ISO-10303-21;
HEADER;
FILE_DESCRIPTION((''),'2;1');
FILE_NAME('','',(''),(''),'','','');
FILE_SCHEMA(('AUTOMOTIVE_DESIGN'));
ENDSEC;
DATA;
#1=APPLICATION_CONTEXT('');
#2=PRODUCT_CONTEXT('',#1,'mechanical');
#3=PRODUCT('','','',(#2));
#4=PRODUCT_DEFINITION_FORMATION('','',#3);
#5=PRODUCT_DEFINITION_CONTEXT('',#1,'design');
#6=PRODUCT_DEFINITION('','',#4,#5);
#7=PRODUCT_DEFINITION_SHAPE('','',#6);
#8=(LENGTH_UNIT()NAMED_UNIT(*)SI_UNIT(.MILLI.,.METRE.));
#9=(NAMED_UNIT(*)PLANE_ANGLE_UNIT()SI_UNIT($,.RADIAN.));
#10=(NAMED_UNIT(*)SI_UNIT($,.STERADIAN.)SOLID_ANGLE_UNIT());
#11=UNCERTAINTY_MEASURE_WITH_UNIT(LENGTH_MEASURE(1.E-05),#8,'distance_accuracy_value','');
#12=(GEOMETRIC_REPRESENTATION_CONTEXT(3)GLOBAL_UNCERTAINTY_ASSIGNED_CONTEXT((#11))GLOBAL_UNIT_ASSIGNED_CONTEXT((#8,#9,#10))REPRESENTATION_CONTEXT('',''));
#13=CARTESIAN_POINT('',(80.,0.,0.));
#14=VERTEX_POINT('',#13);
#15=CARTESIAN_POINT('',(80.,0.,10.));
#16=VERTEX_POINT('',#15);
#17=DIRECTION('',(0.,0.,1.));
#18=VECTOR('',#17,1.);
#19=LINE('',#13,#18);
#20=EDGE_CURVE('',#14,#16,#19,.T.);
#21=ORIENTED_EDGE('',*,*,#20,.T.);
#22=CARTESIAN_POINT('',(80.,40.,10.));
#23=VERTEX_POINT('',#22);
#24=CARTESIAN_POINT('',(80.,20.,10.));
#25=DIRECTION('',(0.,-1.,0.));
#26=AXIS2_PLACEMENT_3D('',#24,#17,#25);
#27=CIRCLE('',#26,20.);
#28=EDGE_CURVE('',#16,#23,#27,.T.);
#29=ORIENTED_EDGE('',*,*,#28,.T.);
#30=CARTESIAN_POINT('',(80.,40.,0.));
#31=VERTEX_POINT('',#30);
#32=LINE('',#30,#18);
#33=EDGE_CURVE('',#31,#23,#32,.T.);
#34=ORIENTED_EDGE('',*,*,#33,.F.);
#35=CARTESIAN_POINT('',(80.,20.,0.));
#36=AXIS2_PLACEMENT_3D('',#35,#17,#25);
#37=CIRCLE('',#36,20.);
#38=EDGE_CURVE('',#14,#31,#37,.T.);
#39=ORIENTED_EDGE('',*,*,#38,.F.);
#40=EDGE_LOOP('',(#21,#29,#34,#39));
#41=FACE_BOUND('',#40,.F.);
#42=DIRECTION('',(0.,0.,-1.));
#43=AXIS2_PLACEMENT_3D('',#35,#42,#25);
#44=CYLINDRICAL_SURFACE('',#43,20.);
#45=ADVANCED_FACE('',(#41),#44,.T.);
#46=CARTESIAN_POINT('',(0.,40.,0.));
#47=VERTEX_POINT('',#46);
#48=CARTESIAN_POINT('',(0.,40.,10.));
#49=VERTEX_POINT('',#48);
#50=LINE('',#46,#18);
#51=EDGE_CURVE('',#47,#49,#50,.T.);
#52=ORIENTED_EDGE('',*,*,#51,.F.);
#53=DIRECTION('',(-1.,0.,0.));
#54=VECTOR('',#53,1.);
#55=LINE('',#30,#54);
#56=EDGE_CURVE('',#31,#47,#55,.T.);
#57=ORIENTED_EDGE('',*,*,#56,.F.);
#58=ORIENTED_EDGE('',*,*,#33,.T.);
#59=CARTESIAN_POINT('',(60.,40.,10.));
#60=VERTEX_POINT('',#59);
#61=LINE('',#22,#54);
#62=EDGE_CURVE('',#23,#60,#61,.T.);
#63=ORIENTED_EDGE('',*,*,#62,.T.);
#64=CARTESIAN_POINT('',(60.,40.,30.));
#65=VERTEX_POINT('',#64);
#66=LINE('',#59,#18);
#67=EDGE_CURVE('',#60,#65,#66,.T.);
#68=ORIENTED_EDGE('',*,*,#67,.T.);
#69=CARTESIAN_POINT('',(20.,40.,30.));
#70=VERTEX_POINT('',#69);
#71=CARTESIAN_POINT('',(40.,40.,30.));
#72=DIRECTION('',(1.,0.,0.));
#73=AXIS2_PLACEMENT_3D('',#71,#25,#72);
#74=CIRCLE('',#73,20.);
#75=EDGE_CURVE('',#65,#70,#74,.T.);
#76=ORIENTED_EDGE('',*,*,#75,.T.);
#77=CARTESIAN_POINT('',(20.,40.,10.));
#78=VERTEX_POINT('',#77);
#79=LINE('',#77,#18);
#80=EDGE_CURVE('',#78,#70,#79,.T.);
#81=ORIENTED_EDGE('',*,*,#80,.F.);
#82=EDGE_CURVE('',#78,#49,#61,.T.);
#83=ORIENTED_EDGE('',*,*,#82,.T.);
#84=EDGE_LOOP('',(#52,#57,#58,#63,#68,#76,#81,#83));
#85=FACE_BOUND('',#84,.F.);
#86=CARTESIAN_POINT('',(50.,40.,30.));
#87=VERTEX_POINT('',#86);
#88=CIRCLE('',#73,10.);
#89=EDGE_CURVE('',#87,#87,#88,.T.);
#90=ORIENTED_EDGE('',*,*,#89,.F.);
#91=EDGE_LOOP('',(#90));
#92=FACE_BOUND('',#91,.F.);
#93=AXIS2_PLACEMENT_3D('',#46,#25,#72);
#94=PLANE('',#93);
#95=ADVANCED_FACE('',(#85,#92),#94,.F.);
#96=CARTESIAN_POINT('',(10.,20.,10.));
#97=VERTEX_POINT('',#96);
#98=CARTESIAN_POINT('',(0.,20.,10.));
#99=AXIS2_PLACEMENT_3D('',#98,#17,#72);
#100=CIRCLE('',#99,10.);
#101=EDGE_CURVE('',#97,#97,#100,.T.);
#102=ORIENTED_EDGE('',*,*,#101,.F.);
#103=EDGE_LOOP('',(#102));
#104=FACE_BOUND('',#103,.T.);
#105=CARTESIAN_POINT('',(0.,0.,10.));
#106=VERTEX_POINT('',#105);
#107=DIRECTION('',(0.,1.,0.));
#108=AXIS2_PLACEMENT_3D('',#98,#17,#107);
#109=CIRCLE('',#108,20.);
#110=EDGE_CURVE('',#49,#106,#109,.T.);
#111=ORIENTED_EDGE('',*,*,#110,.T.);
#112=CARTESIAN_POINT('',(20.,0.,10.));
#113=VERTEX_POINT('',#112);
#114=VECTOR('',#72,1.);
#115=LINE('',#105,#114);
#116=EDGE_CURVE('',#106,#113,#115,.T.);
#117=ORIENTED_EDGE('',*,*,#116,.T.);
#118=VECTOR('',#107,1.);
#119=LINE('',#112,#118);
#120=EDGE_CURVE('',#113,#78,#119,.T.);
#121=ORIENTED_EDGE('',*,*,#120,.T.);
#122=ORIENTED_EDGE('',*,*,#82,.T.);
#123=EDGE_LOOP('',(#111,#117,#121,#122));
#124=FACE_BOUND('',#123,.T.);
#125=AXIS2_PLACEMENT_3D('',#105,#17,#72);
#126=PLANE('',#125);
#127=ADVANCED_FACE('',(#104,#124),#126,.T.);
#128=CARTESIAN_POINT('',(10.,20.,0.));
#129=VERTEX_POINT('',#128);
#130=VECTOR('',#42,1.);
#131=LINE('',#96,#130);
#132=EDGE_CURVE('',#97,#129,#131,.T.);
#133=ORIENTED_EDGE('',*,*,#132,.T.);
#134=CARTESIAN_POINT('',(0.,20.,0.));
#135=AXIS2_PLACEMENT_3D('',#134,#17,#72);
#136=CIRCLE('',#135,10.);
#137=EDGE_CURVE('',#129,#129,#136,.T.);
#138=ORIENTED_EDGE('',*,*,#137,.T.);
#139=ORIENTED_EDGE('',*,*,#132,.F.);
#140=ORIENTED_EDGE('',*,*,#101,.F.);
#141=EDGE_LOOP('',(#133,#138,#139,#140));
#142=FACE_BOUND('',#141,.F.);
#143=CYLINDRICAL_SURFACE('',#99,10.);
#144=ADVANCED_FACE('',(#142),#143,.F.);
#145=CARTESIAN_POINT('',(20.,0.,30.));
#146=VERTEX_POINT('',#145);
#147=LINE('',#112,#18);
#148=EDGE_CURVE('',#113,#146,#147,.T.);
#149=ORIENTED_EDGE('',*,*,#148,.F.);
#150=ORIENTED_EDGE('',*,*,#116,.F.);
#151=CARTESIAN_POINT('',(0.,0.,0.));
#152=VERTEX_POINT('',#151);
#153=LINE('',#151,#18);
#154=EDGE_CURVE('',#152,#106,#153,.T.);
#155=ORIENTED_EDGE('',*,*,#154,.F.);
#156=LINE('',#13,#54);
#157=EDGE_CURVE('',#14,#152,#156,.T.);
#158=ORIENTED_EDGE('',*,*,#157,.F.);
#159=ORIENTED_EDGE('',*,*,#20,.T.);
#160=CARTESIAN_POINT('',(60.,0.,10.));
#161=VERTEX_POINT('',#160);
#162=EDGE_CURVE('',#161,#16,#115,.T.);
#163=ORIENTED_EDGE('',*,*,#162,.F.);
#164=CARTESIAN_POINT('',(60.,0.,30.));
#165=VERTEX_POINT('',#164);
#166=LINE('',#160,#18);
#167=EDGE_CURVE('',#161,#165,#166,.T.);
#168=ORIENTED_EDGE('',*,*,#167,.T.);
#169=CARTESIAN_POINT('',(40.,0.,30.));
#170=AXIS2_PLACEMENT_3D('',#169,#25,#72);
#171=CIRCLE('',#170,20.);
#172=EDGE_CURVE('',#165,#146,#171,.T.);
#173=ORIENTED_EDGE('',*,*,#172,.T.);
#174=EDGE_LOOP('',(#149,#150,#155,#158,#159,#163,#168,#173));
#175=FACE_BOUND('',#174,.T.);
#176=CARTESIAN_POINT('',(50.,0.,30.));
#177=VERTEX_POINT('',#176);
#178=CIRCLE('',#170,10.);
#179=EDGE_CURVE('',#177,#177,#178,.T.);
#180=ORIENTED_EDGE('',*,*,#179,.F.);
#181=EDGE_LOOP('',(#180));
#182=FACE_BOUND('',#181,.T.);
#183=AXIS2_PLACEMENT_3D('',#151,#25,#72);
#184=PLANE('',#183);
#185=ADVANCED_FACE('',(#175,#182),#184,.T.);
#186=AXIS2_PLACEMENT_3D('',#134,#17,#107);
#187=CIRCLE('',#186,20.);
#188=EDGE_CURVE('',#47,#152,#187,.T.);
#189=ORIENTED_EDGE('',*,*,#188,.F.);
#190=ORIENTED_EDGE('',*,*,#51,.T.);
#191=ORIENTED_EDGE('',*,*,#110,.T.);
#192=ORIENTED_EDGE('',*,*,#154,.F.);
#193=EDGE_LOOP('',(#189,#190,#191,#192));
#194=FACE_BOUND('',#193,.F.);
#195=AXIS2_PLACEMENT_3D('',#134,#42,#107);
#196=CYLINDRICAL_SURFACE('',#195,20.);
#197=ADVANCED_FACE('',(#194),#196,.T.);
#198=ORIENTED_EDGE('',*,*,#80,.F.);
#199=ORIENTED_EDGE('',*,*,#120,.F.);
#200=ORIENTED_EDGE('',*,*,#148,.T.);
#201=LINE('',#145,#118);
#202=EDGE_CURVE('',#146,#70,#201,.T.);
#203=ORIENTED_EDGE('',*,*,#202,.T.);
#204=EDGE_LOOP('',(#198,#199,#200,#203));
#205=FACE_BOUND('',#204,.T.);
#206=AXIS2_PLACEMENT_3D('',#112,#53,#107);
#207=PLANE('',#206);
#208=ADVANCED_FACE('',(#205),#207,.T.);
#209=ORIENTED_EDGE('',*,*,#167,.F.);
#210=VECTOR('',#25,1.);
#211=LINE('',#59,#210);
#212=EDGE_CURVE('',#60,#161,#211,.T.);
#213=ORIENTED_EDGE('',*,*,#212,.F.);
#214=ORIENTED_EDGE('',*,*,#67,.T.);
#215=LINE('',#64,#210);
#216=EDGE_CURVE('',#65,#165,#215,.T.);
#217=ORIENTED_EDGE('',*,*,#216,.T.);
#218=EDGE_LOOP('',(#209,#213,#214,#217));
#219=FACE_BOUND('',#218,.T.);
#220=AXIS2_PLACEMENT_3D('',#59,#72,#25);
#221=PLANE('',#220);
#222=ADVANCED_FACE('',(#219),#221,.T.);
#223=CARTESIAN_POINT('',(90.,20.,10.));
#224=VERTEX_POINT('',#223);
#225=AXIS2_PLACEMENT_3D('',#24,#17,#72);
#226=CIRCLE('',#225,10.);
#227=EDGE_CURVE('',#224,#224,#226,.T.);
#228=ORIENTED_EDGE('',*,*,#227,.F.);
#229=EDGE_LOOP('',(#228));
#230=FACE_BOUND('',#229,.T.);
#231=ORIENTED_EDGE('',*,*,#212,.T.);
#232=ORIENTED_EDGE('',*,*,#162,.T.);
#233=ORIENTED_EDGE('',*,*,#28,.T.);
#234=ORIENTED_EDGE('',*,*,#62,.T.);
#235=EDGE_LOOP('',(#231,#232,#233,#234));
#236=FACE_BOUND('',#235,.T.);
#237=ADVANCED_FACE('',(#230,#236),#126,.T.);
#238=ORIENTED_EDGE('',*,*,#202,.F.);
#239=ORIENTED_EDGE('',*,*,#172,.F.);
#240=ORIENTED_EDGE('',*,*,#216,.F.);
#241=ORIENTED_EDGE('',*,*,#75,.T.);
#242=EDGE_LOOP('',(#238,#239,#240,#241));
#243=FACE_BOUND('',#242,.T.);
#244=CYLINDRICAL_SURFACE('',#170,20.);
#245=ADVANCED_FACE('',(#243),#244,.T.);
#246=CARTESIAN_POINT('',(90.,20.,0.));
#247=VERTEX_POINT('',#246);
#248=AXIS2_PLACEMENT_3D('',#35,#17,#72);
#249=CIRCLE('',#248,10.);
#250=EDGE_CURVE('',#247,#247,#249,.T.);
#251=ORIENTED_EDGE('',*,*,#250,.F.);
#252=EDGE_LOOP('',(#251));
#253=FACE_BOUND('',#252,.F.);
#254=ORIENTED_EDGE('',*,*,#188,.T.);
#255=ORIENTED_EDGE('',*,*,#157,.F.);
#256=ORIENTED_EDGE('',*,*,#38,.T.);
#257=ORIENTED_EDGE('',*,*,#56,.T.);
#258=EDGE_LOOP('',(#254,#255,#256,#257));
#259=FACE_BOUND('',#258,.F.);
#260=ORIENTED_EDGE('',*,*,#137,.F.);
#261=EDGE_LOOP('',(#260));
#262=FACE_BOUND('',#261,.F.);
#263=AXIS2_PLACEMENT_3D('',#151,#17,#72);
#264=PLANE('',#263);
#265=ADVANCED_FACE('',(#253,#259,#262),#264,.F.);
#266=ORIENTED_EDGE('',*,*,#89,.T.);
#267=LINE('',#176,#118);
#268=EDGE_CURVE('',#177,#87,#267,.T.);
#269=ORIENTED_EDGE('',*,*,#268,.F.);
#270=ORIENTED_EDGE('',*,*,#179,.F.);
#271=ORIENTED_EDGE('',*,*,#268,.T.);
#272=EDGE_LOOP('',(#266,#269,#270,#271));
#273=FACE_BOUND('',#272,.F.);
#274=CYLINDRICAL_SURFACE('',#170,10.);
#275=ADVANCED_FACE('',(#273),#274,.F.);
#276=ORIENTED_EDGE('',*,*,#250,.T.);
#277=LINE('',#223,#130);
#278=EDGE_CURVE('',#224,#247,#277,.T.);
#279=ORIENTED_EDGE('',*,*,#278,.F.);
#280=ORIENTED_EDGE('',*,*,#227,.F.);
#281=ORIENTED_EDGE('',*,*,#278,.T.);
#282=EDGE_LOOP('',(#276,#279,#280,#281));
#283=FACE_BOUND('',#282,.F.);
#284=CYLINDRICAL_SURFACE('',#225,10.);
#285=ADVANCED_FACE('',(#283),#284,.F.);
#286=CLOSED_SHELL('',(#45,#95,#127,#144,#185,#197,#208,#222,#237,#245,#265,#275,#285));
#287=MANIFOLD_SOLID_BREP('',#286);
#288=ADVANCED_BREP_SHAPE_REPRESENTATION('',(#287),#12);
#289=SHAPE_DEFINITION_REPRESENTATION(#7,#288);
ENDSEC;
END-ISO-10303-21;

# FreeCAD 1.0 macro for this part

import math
import FreeCAD as App
import Part
import Sketcher
from FreeCAD import Vector
Q = App.Units.Quantity


def add_polygon(sketch, points):
    """Adds a closed chain of lines whose ends are joined by coincident constraints."""
    first, n = sketch.GeometryCount, len(points)
    for a, b in zip(points, points[1:] + points[:1]):
        sketch.addGeometry(Part.LineSegment(App.Vector(*a, 0), App.Vector(*b, 0)), False)
    for i in range(n):
        sketch.addConstraint(Sketcher.Constraint("Coincident", first + i, 2, first + (i + 1) % n, 1))

doc = App.newDocument("Part")
params = doc.addObject("Spreadsheet::Sheet", "Params")
for row, (alias, value) in enumerate([
    ("sketch1_radius", "20 mm"),
    ("sketch1_width", "80 mm"),
    ("pad1_length", "10 mm"),
    ("sketch2_diameter", "20 mm"),
    ("pocket1_length", "10 mm"),
    ("sketch3_width", "40 mm"),
    ("pad2_length", "20 mm"),
    ("sketch4_radius", "20 mm"),
    ("pad3_length", "40 mm"),
    ("sketch5_diameter", "20 mm"),
    ("pocket2_length", "40 mm"),
], start=1):
    params.set(f"A{row}", alias)
    params.set(f"B{row}", "=" + value)
    params.setAlias(f"B{row}", alias)

body = doc.addObject("PartDesign::Body", "Body")

sketch1 = body.newObject("Sketcher::SketchObject", "Sketch")
sketch1.AttachmentSupport = (doc.getObject("XY_Plane"), [""])
sketch1.MapMode = "FlatFace"
sketch1.addGeometry([
    Part.LineSegment(Vector(80, 40, 0), Vector(0, 40, 0)),
    Part.ArcOfCircle(Part.Circle(Vector(0, 20, 0), Vector(0, 0, 1), 20), math.radians(90), math.radians(270)),
    Part.LineSegment(Vector(0, 0, 0), Vector(80, 0, 0)),
    Part.ArcOfCircle(Part.Circle(Vector(80, 20, 0), Vector(0, 0, 1), 20), math.radians(-90), math.radians(90)),
], False)
sketch1.addConstraint([
    Sketcher.Constraint("Tangent", 0, 2, 1, 1),
    Sketcher.Constraint("Tangent", 1, 2, 2, 1),
    Sketcher.Constraint("Tangent", 2, 2, 3, 1),
    Sketcher.Constraint("Tangent", 3, 2, 0, 1),
    Sketcher.Constraint("Horizontal", 0),
    Sketcher.Constraint("Horizontal", 2),
    Sketcher.Constraint("Coincident", 1, 2, -1, 1),
    Sketcher.Constraint("Radius", 1, Q("20 mm")),
    Sketcher.Constraint("DistanceX", 0, 2, 0, 1, Q("80 mm")),
])
sketch1.setExpression("Constraints[7]", "Params.sketch1_radius")
sketch1.setExpression("Constraints[8]", "Params.sketch1_width")
pad1 = body.newObject("PartDesign::Pad", "Pad")
pad1.Profile = sketch1
pad1.setExpression("Length", "Params.pad1_length")

sketch2 = body.newObject("Sketcher::SketchObject", "Sketch001")
sketch2.AttachmentSupport = (doc.getObject("XY_Plane"), [""])
sketch2.MapMode = "FlatFace"
sketch2.AttachmentOffset = App.Placement(Vector(0, 0, 10), App.Rotation())
sketch2.addGeometry([
    Part.Circle(Vector(0, 20, 0), Vector(0, 0, 1), 10),
    Part.Circle(Vector(80, 20, 0), Vector(0, 0, 1), 10),
], False)
sketch2.addConstraint([
    Sketcher.Constraint("Equal", 0, 1),
    Sketcher.Constraint("PointOnObject", 0, 3, -2),
    Sketcher.Constraint("Horizontal", 0, 3, 1, 3),
    Sketcher.Constraint("Diameter", 0, Q("20 mm")),
    Sketcher.Constraint("DistanceY", -1, 1, 0, 3, Q("20 mm")),
    Sketcher.Constraint("DistanceX", -1, 1, 1, 3, Q("80 mm")),
])
sketch2.setExpression("Constraints[3]", "Params.sketch2_diameter")
pocket1 = body.newObject("PartDesign::Pocket", "Pocket")
pocket1.Profile = sketch2
pocket1.setExpression("Length", "Params.pocket1_length")

sketch3 = body.newObject("Sketcher::SketchObject", "Sketch002")
sketch3.AttachmentSupport = (doc.getObject("XY_Plane"), [""])
sketch3.MapMode = "FlatFace"
sketch3.AttachmentOffset = App.Placement(Vector(0, 0, 10), App.Rotation())
add_polygon(sketch3, [(60, 0), (60, 40), (20, 40), (20, 0)])
sketch3.addConstraint([
    Sketcher.Constraint("Vertical", 0),
    Sketcher.Constraint("Horizontal", 1),
    Sketcher.Constraint("Vertical", 2),
    Sketcher.Constraint("Horizontal", 3),
    Sketcher.Constraint("PointOnObject", 2, 2, -1),
    Sketcher.Constraint("Equal", 3, 0),
    Sketcher.Constraint("DistanceX", 1, 2, 1, 1, Q("40 mm")),
    Sketcher.Constraint("DistanceX", -1, 1, 1, 2, Q("20 mm")),
])
sketch3.setExpression("Constraints[10]", "Params.sketch3_width")
pad2 = body.newObject("PartDesign::Pad", "Pad001")
pad2.Profile = sketch3
pad2.setExpression("Length", "Params.pad2_length")

sketch4 = body.newObject("Sketcher::SketchObject", "Sketch003")
sketch4.AttachmentSupport = (doc.getObject("XZ_Plane"), [""])
sketch4.MapMode = "FlatFace"
sketch4.addGeometry([
    Part.ArcOfCircle(Part.Circle(Vector(40, 30, 0), Vector(0, 0, 1), 20), math.radians(0), math.radians(180)),
    Part.LineSegment(Vector(20, 30, 0), Vector(60, 30, 0)),
], False)
sketch4.addConstraint([
    Sketcher.Constraint("Coincident", 0, 1, 1, 2),
    Sketcher.Constraint("Coincident", 1, 1, 0, 2),
    Sketcher.Constraint("Horizontal", 1),
    Sketcher.Constraint("Radius", 0, Q("20 mm")),
    Sketcher.Constraint("DistanceX", -1, 1, 0, 3, Q("40 mm")),
    Sketcher.Constraint("DistanceY", -1, 1, 0, 3, Q("30 mm")),
    Sketcher.Constraint("DistanceY", -1, 1, 0, 1, Q("30 mm")),
])
sketch4.setExpression("Constraints[3]", "Params.sketch4_radius")
pad3 = body.newObject("PartDesign::Pad", "Pad002")
pad3.Profile = sketch4
pad3.setExpression("Length", "Params.pad3_length")
pad3.Reversed = True

sketch5 = body.newObject("Sketcher::SketchObject", "Sketch004")
sketch5.AttachmentSupport = (doc.getObject("XZ_Plane"), [""])
sketch5.MapMode = "FlatFace"
sketch5.addGeometry(Part.Circle(Vector(40, 30, 0), Vector(0, 0, 1), 10), False)
sketch5.addConstraint([
    Sketcher.Constraint("Diameter", 0, Q("20 mm")),
    Sketcher.Constraint("DistanceX", -1, 1, 0, 3, Q("40 mm")),
    Sketcher.Constraint("DistanceY", -1, 1, 0, 3, Q("30 mm")),
])
sketch5.setExpression("Constraints[0]", "Params.sketch5_diameter")
pocket2 = body.newObject("PartDesign::Pocket", "Pocket001")
pocket2.Profile = sketch5
pocket2.setExpression("Length", "Params.pocket2_length")

doc.recompute()
